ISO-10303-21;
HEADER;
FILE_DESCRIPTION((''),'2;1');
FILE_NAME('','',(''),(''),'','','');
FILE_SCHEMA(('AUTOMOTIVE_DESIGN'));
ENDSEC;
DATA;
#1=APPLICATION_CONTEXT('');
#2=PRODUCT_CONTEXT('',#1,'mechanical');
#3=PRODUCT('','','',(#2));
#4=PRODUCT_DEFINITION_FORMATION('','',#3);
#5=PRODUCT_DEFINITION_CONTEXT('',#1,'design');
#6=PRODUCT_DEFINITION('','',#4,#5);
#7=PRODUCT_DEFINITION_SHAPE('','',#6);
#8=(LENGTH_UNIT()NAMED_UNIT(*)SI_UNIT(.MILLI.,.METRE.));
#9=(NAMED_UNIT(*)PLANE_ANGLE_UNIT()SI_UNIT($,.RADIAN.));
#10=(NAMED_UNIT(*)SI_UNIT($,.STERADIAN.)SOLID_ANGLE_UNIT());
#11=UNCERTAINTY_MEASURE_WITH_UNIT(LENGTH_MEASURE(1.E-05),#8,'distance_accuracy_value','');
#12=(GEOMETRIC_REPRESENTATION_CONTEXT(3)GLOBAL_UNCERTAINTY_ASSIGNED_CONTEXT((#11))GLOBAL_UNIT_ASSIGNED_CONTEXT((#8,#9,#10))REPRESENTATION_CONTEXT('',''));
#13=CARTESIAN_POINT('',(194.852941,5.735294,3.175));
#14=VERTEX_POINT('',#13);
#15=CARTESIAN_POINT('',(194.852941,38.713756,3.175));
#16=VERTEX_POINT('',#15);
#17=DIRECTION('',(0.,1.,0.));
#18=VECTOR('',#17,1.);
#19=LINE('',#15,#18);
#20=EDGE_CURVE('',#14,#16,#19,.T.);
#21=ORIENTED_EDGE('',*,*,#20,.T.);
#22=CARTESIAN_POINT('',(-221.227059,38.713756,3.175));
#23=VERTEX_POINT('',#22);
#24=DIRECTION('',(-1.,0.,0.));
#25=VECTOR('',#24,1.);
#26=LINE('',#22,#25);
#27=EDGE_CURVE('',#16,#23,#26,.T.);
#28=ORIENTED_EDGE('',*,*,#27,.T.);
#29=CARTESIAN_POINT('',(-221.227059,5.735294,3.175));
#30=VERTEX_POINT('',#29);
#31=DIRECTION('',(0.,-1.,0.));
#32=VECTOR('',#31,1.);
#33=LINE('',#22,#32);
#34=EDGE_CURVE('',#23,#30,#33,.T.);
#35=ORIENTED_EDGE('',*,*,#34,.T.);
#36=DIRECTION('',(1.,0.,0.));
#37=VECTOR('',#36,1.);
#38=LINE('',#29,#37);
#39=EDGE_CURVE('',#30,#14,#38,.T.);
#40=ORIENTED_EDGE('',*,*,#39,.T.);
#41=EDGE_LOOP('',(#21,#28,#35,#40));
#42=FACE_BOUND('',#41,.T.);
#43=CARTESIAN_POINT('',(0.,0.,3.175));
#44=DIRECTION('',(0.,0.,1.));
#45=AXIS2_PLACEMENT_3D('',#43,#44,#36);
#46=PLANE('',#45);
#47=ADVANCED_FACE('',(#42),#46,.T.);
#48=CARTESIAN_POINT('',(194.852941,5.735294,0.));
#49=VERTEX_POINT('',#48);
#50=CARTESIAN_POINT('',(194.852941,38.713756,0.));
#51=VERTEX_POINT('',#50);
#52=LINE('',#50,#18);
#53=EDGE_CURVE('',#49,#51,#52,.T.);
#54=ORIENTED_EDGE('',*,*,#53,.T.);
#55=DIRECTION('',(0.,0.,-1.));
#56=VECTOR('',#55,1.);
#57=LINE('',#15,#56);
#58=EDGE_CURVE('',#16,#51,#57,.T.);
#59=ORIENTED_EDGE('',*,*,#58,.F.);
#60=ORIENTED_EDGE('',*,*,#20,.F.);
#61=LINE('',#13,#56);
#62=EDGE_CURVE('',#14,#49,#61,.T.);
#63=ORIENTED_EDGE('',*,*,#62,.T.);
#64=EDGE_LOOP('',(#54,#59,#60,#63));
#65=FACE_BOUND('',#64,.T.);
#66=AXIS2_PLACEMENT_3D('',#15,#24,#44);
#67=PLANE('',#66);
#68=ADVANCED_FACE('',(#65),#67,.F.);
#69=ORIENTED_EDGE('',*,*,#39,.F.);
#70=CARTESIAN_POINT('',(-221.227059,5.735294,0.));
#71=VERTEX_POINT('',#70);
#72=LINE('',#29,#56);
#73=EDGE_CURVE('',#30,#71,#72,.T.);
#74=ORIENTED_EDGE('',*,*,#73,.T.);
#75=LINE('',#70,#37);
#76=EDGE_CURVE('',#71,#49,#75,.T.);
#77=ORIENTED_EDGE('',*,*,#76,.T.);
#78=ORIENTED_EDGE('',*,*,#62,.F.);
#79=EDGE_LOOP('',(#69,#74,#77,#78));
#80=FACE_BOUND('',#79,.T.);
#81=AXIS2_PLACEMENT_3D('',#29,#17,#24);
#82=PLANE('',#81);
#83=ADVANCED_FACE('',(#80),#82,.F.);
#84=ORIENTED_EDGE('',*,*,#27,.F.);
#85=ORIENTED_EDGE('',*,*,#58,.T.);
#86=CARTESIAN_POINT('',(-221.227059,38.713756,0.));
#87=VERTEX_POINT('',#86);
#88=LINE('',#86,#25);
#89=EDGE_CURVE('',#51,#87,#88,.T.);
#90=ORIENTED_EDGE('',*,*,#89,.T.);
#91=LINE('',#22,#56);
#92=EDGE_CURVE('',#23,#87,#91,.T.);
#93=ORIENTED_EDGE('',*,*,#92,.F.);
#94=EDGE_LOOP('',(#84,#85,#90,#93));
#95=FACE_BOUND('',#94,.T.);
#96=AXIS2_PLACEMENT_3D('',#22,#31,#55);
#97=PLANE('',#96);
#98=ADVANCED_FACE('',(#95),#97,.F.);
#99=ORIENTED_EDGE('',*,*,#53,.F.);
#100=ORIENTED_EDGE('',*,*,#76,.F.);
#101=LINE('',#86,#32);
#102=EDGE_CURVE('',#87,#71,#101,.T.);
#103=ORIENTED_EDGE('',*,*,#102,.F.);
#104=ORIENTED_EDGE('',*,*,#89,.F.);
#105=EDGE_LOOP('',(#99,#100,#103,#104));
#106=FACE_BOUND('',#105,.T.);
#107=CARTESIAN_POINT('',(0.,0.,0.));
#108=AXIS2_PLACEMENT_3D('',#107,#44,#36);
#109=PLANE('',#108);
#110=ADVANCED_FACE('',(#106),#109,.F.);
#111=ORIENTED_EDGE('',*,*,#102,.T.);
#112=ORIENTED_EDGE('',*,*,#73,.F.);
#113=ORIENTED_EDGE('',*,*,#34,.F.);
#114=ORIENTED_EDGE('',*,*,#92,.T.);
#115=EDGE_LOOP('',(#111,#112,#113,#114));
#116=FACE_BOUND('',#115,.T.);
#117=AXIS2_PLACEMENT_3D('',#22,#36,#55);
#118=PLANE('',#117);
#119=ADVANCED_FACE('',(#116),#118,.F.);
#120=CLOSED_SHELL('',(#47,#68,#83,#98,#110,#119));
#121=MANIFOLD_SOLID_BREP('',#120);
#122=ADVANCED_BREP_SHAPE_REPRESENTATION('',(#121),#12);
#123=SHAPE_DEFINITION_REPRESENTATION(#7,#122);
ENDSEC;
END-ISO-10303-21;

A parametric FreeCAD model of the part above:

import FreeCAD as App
import Part
import Sketcher

V = App.Vector
Q = App.Units.Quantity


def add_polygon(sketch, points):
    """Adds a closed chain of lines whose ends are joined by coincident constraints."""
    first, n = sketch.GeometryCount, len(points)
    for a, b in zip(points, points[1:] + points[:1]):
        sketch.addGeometry(Part.LineSegment(App.Vector(*a, 0), App.Vector(*b, 0)), False)
    for i in range(n):
        sketch.addConstraint(Sketcher.Constraint("Coincident", first + i, 2, first + (i + 1) % n, 1))

doc = App.newDocument("Part")
body = doc.addObject("PartDesign::Body", "Body")

# Sketch on XY plane
sketch1 = body.newObject("Sketcher::SketchObject", "Sketch")
sketch1.AttachmentSupport = (doc.getObject("XY_Plane"), [""])
sketch1.MapMode = "FlatFace"
add_polygon(sketch1, [(-221, 39), (-221, 6), (195, 6), (195, 39)])  # lines 0-3
sketch1.addConstraint([
    Sketcher.Constraint("Vertical", 0),
    Sketcher.Constraint("Horizontal", 1),
    Sketcher.Constraint("Vertical", 2),
    Sketcher.Constraint("Horizontal", 3),
    Sketcher.Constraint("DistanceX", 1, 1, 1, 2, Q("416.08 mm")),
    Sketcher.Constraint("DistanceY", 0, 2, 0, 1, Q("32.978462 mm")),
    Sketcher.Constraint("DistanceX", 0, 2, -1, 1, Q("221.227059 mm")),
    Sketcher.Constraint("DistanceY", -1, 1, 0, 2, Q("5.735294 mm")),
])
pad1 = body.newObject("PartDesign::Pad", "Pad")
pad1.Profile = sketch1
pad1.Length = Q("0.125 in")

doc.recompute()
